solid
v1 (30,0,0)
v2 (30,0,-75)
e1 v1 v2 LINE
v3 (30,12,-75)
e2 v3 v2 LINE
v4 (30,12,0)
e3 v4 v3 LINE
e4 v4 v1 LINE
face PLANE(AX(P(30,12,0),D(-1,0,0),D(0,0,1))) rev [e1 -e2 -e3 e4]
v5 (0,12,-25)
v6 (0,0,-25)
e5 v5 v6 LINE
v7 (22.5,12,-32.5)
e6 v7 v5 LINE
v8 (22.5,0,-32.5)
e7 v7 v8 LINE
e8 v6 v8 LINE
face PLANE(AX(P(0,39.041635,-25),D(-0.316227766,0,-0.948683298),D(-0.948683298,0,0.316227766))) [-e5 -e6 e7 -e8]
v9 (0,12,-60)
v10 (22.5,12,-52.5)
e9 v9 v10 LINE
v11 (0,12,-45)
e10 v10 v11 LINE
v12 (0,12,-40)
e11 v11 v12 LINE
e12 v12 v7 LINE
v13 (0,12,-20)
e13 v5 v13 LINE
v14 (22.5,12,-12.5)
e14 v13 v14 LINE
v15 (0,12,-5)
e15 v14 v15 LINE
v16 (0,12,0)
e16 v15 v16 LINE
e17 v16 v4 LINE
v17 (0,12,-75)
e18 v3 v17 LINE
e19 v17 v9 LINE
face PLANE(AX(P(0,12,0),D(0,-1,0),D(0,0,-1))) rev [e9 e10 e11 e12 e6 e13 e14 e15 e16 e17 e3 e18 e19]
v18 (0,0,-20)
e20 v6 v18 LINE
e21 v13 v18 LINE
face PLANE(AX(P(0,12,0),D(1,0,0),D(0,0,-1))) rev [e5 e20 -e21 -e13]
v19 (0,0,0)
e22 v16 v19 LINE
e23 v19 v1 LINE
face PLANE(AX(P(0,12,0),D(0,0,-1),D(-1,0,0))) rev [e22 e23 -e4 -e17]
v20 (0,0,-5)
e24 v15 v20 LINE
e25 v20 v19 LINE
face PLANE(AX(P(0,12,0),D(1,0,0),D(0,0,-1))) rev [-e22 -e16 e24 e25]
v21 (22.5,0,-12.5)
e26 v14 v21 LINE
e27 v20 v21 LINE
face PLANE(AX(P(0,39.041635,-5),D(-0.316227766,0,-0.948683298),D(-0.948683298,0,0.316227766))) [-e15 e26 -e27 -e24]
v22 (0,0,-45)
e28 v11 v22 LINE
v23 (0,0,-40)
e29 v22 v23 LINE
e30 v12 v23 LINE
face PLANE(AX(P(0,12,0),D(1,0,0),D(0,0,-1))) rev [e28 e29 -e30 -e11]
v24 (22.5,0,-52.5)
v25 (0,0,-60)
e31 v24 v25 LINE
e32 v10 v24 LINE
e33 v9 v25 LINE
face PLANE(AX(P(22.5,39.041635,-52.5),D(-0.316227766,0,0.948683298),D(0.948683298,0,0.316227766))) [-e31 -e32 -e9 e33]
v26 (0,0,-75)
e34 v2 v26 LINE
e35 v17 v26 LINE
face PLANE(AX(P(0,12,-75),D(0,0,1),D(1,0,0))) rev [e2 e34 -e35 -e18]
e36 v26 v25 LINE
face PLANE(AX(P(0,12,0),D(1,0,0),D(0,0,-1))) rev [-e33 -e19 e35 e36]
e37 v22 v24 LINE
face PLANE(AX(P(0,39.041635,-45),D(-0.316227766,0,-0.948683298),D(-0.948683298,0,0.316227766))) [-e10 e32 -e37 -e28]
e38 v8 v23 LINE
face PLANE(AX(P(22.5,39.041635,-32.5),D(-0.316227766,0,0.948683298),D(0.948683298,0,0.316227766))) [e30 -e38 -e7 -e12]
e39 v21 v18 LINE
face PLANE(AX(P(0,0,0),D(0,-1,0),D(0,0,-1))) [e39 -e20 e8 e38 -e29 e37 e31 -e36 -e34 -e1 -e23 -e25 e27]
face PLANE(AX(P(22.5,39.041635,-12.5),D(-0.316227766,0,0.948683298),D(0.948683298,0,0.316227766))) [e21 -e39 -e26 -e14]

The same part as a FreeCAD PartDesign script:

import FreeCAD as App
import Part
import Sketcher

doc = App.newDocument("Part")
body = doc.addObject("PartDesign::Body", "Body")

# Sketch on XZ plane
sketch1 = body.newObject("Sketcher::SketchObject", "Sketch")
sketch1.AttachmentSupport = (doc.getObject("XZ_Plane"), [""])
sketch1.MapMode = "FlatFace"
sketch1.addGeometry([
    Part.LineSegment(App.Vector(0, -75, 0), App.Vector(0, 0, 0)),
    Part.LineSegment(App.Vector(0, 0, 0), App.Vector(30, 0, 0)),
    Part.LineSegment(App.Vector(30, 0, 0), App.Vector(30, -75, 0)),
    Part.LineSegment(App.Vector(30, -75, 0), App.Vector(0, -75, 0)),
], False)
sketch1.addConstraint([
    Sketcher.Constraint("Coincident", 0, 2, 1, 1),
    Sketcher.Constraint("Coincident", 1, 2, 2, 1),
    Sketcher.Constraint("Coincident", 2, 2, 3, 1),
    Sketcher.Constraint("Coincident", 3, 2, 0, 1),
    Sketcher.Constraint("Vertical", 0),
    Sketcher.Constraint("Horizontal", 1),
    Sketcher.Constraint("Vertical", 2),
    Sketcher.Constraint("Horizontal", 3),
    Sketcher.Constraint("Coincident", 0, 2, -1, 1),
    Sketcher.Constraint("DistanceX", 1, 1, 1, 2, 30.0),
    Sketcher.Constraint("DistanceY", 0, 1, 0, 2, 75.0),
])
pad1 = body.newObject("PartDesign::Pad", "Pad")
pad1.Profile = sketch1
pad1.Length = 12
pad1.Reversed = True

# Sketch on XZ plane
sketch2 = body.newObject("Sketcher::SketchObject", "Sketch001")
sketch2.AttachmentSupport = (doc.getObject("XZ_Plane"), [""])
sketch2.MapMode = "FlatFace"
sketch2.addGeometry([
    Part.LineSegment(App.Vector(0, -5, 0), App.Vector(22, -12, 0)),
    Part.LineSegment(App.Vector(22, -12, 0), App.Vector(0, -20, 0)),
    Part.LineSegment(App.Vector(0, -20, 0), App.Vector(0, -5, 0)),
], False)
sketch2.addConstraint([
    Sketcher.Constraint("Coincident", 0, 2, 1, 1),
    Sketcher.Constraint("Coincident", 1, 2, 2, 1),
    Sketcher.Constraint("Coincident", 2, 2, 0, 1),
    Sketcher.Constraint("Vertical", 2),
    Sketcher.Constraint("PointOnObject", 1, 2, -2),
    Sketcher.Constraint("Equal", 0, 1),
    Sketcher.Constraint("DistanceY", 2, 1, 2, 2, 15.0),
    Sketcher.Constraint("DistanceY", 1, 2, -1, 1, 20.0),
    Sketcher.Constraint("DistanceX", -1, 1, 0, 2, 22.5),
])
pocket1 = body.newObject("PartDesign::Pocket", "Pocket")
pocket1.Profile = sketch2
pocket1.Length = 12
doc.recompute()

linearpattern = body.newObject("PartDesign::LinearPattern", "LinearPattern")
linearpattern.Originals = [pocket1]
linearpattern.Direction = (doc.getObject("Z_Axis"), [""])
linearpattern.Mode = "offset"
linearpattern.Offset = 20
linearpattern.Occurrences = 3
linearpattern.Reversed = True
body.Tip = linearpattern

doc.recompute()
